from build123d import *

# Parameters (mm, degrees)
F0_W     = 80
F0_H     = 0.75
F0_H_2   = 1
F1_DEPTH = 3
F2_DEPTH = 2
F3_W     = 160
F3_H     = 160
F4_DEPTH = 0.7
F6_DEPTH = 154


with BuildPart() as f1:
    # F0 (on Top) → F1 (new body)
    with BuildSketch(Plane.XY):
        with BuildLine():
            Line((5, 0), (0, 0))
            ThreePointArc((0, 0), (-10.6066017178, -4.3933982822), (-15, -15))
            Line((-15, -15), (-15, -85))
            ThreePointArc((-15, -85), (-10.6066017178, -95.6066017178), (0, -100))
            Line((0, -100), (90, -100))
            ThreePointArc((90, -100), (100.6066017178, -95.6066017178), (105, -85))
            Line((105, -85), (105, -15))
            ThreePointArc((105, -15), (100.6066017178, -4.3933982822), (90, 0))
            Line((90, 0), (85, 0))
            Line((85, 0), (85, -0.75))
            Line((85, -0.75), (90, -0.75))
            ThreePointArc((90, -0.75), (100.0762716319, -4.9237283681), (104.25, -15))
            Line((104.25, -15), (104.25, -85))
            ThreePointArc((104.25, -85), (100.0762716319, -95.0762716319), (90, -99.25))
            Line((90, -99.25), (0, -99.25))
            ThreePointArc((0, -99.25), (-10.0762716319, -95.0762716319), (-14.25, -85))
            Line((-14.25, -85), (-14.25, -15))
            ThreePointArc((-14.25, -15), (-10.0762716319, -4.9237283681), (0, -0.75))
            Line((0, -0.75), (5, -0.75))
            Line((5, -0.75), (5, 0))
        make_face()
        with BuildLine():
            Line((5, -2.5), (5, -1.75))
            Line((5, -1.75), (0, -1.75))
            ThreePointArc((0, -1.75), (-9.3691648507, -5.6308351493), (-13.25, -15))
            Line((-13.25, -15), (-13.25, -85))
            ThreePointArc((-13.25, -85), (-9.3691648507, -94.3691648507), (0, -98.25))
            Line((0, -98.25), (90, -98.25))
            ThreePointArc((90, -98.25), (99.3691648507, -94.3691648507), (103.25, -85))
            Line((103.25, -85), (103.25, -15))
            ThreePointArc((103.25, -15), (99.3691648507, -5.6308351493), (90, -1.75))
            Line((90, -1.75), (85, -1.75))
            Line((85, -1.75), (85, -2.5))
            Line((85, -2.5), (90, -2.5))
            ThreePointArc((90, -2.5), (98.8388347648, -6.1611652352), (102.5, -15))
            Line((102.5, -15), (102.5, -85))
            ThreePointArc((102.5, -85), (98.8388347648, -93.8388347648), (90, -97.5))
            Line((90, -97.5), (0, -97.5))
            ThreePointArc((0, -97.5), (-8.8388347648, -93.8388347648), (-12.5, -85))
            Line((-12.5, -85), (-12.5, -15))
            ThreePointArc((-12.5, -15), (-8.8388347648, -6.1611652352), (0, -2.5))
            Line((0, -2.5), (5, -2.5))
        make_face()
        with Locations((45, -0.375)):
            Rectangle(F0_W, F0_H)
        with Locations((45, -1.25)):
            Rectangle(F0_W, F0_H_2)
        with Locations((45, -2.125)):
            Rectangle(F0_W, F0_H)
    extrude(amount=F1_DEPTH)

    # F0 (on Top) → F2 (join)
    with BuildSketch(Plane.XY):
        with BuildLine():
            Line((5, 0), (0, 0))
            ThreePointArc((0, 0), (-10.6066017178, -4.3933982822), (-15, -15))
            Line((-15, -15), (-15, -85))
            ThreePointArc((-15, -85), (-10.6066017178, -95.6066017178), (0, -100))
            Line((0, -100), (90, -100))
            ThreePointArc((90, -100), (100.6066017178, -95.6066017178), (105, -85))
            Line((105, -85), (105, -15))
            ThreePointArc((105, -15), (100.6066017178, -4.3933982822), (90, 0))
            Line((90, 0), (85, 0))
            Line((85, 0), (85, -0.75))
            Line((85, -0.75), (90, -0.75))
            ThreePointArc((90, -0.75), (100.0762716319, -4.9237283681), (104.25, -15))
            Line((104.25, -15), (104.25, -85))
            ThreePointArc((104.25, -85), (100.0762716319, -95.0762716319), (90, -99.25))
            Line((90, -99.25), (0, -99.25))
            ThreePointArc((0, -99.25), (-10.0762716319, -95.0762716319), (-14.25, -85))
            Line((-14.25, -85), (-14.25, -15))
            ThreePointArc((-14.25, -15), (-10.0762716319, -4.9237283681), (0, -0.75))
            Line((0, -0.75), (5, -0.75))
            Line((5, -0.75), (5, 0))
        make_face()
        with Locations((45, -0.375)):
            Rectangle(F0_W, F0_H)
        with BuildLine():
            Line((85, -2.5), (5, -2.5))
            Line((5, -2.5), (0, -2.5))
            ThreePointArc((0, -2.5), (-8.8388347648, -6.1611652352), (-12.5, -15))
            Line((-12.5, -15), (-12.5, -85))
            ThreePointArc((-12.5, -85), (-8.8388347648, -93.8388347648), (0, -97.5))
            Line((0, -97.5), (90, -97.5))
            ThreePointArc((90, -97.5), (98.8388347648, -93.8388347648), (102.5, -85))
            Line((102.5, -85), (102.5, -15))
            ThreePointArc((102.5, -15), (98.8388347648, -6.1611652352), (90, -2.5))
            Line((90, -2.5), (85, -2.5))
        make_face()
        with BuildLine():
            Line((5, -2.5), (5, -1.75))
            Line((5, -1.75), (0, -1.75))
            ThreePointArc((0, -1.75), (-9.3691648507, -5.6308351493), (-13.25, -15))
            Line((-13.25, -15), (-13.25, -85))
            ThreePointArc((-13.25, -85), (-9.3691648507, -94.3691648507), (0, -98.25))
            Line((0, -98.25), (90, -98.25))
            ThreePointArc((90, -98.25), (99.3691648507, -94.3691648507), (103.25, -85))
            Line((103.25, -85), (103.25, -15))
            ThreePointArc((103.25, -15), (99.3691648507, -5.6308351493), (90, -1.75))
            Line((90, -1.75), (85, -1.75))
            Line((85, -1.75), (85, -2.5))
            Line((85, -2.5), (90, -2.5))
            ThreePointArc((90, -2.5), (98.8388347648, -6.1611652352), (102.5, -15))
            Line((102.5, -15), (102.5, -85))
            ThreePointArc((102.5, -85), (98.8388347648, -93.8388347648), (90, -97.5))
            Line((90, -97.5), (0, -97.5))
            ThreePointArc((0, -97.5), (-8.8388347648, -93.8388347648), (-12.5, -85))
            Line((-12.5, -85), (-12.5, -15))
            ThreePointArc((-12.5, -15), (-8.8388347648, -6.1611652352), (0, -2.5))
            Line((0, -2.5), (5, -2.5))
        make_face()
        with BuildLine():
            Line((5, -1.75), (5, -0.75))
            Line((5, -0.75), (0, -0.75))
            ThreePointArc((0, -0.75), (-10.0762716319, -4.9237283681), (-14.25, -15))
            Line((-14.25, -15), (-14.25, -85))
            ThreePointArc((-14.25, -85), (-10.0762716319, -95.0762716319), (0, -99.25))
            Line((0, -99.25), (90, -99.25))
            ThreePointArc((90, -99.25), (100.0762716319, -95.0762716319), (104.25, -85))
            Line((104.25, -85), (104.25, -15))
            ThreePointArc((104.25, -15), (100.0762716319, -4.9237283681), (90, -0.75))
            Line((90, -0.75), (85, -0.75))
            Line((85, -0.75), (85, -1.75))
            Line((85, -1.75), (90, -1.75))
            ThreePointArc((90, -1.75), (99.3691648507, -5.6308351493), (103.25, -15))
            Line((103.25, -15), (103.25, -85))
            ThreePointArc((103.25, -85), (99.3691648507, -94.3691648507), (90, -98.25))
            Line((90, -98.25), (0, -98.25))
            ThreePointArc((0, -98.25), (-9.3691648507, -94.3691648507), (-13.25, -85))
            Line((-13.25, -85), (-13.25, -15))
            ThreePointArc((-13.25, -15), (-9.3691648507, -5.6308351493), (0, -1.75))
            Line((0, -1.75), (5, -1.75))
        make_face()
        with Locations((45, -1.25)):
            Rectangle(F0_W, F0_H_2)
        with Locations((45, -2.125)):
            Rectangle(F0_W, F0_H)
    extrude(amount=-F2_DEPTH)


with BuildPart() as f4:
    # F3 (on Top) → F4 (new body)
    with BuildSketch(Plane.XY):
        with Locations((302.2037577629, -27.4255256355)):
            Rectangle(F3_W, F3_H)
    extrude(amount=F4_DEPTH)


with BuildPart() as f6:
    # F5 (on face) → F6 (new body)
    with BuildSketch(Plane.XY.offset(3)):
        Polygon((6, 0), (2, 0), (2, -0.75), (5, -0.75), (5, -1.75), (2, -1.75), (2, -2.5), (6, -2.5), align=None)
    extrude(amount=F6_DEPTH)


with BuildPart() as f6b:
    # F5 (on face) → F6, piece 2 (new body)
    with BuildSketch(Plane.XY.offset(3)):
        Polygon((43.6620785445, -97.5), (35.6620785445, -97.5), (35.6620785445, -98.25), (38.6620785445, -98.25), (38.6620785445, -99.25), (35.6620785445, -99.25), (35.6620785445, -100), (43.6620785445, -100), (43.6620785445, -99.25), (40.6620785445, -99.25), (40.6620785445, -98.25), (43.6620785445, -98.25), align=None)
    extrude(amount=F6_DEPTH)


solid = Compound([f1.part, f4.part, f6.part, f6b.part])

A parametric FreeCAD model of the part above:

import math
import FreeCAD as App
import Part
import Sketcher

V = App.Vector
Q = App.Units.Quantity


def add_polygon(sketch, points):
    """Adds a closed chain of lines whose ends are joined by coincident constraints."""
    first, n = sketch.GeometryCount, len(points)
    for a, b in zip(points, points[1:] + points[:1]):
        sketch.addGeometry(Part.LineSegment(App.Vector(*a, 0), App.Vector(*b, 0)), False)
    for i in range(n):
        sketch.addConstraint(Sketcher.Constraint("Coincident", first + i, 2, first + (i + 1) % n, 1))

doc = App.newDocument("Part")
body = doc.addObject("PartDesign::Body", "Body")

# Sketch on XY plane
sketch1 = doc.addObject("Sketcher::SketchObject", "Sketch")
body.addObject(sketch1)
sketch1.AttachmentSupport = (doc.XY_Plane, [""])
sketch1.MapMode = "FlatFace"
sketch1.addGeometry(Part.ArcOfCircle(Part.Circle(V(0, -15, 0), V(0, 0, 1), 15), math.radians(90), math.radians(180)), False)
sketch1.addGeometry(Part.LineSegment(V(-15, -15, 0), V(-15, -85, 0)), False)
sketch1.addGeometry(Part.ArcOfCircle(Part.Circle(V(0, -85, 0), V(0, 0, 1), 15), math.radians(180), math.radians(270)), False)
sketch1.addGeometry(Part.LineSegment(V(0, -100, 0), V(90, -100, 0)), False)
sketch1.addGeometry(Part.ArcOfCircle(Part.Circle(V(90, -85, 0), V(0, 0, 1), 15), math.radians(-90), math.radians(0)), False)
sketch1.addGeometry(Part.LineSegment(V(105, -85, 0), V(105, -15, 0)), False)
sketch1.addGeometry(Part.ArcOfCircle(Part.Circle(V(90, -15, 0), V(0, 0, 1), 15), math.radians(0), math.radians(90)), False)
sketch1.addGeometry(Part.LineSegment(V(90, 0, 0), V(0, 0, 0)), False)
sketch1.addGeometry(Part.ArcOfCircle(Part.Circle(V(90, -15, 0), V(0, 0, 1), 14.2), math.radians(0), math.radians(90)), False)
sketch1.addGeometry(Part.LineSegment(V(104.2, -15, 0), V(104.2, -85, 0)), False)
sketch1.addGeometry(Part.ArcOfCircle(Part.Circle(V(90, -85, 0), V(0, 0, 1), 14.2), math.radians(-90), math.radians(0)), False)
sketch1.addGeometry(Part.LineSegment(V(90, -99.2, 0), V(0, -99.2, 0)), False)
sketch1.addGeometry(Part.ArcOfCircle(Part.Circle(V(0, -85, 0), V(0, 0, 1), 14.2), math.radians(180), math.radians(270)), False)
sketch1.addGeometry(Part.LineSegment(V(-14.2, -85, 0), V(-14.2, -15, 0)), False)
sketch1.addGeometry(Part.ArcOfCircle(Part.Circle(V(0, -15, 0), V(0, 0, 1), 14.2), math.radians(90), math.radians(180)), False)
sketch1.addGeometry(Part.LineSegment(V(0, -0.8, 0), V(5, -0.8, 0)), False)
sketch1.addGeometry(Part.LineSegment(V(5, -0.8, 0), V(5, -1.8, 0)), False)
sketch1.addGeometry(Part.LineSegment(V(5, -1.8, 0), V(0, -1.8, 0)), False)
sketch1.addGeometry(Part.ArcOfCircle(Part.Circle(V(0, -15, 0), V(0, 0, 1), 13.2), math.radians(90), math.radians(180)), False)
sketch1.addGeometry(Part.LineSegment(V(-13.2, -15, 0), V(-13.2, -85, 0)), False)
sketch1.addGeometry(Part.ArcOfCircle(Part.Circle(V(0, -85, 0), V(0, 0, 1), 13.2), math.radians(180), math.radians(270)), False)
sketch1.addGeometry(Part.LineSegment(V(0, -98.2, 0), V(90, -98.2, 0)), False)
sketch1.addGeometry(Part.ArcOfCircle(Part.Circle(V(90, -85, 0), V(0, 0, 1), 13.2), math.radians(-90), math.radians(0)), False)
sketch1.addGeometry(Part.LineSegment(V(103.2, -85, 0), V(103.2, -15, 0)), False)
sketch1.addGeometry(Part.ArcOfCircle(Part.Circle(V(90, -15, 0), V(0, 0, 1), 13.2), math.radians(0), math.radians(90)), False)
sketch1.addGeometry(Part.LineSegment(V(90, -1.8, 0), V(85, -1.8, 0)), False)
sketch1.addGeometry(Part.LineSegment(V(85, -1.8, 0), V(85, -0.8, 0)), False)
sketch1.addGeometry(Part.LineSegment(V(85, -0.8, 0), V(90, -0.8, 0)), False)
sketch1.addGeometry(Part.ArcOfCircle(Part.Circle(V(90, -15, 0), V(0, 0, 1), 12.5), math.radians(0), math.radians(90)), False)
sketch1.addGeometry(Part.LineSegment(V(102.5, -15, 0), V(102.5, -85, 0)), False)
sketch1.addGeometry(Part.ArcOfCircle(Part.Circle(V(90, -85, 0), V(0, 0, 1), 12.5), math.radians(-90), math.radians(0)), False)
sketch1.addGeometry(Part.LineSegment(V(90, -97.5, 0), V(0, -97.5, 0)), False)
sketch1.addGeometry(Part.ArcOfCircle(Part.Circle(V(0, -85, 0), V(0, 0, 1), 12.5), math.radians(180), math.radians(270)), False)
sketch1.addGeometry(Part.LineSegment(V(-12.5, -85, 0), V(-12.5, -15, 0)), False)
sketch1.addGeometry(Part.ArcOfCircle(Part.Circle(V(0, -15, 0), V(0, 0, 1), 12.5), math.radians(90), math.radians(180)), False)
sketch1.addGeometry(Part.LineSegment(V(0, -2.5, 0), V(90, -2.5, 0)), False)
sketch1.addConstraint(Sketcher.Constraint("Tangent", 0, 2, 1, 1))
sketch1.addConstraint(Sketcher.Constraint("Tangent", 1, 2, 2, 1))
sketch1.addConstraint(Sketcher.Constraint("Tangent", 2, 2, 3, 1))
sketch1.addConstraint(Sketcher.Constraint("Tangent", 3, 2, 4, 1))
sketch1.addConstraint(Sketcher.Constraint("Tangent", 4, 2, 5, 1))
sketch1.addConstraint(Sketcher.Constraint("Tangent", 5, 2, 6, 1))
sketch1.addConstraint(Sketcher.Constraint("Tangent", 6, 2, 7, 1))
sketch1.addConstraint(Sketcher.Constraint("Tangent", 7, 2, 0, 1))
sketch1.addConstraint(Sketcher.Constraint("Tangent", 8, 1, 9, 1))
sketch1.addConstraint(Sketcher.Constraint("Tangent", 9, 2, 10, 2))
sketch1.addConstraint(Sketcher.Constraint("Tangent", 10, 1, 11, 1))
sketch1.addConstraint(Sketcher.Constraint("Tangent", 11, 2, 12, 2))
sketch1.addConstraint(Sketcher.Constraint("Tangent", 12, 1, 13, 1))
sketch1.addConstraint(Sketcher.Constraint("Tangent", 13, 2, 14, 2))
sketch1.addConstraint(Sketcher.Constraint("Tangent", 14, 1, 15, 1))
sketch1.addConstraint(Sketcher.Constraint("Coincident", 15, 2, 16, 1))
sketch1.addConstraint(Sketcher.Constraint("Coincident", 16, 2, 17, 1))
sketch1.addConstraint(Sketcher.Constraint("Tangent", 17, 2, 18, 1))
sketch1.addConstraint(Sketcher.Constraint("Tangent", 18, 2, 19, 1))
sketch1.addConstraint(Sketcher.Constraint("Tangent", 19, 2, 20, 1))
sketch1.addConstraint(Sketcher.Constraint("Tangent", 20, 2, 21, 1))
sketch1.addConstraint(Sketcher.Constraint("Tangent", 21, 2, 22, 1))
sketch1.addConstraint(Sketcher.Constraint("Tangent", 22, 2, 23, 1))
sketch1.addConstraint(Sketcher.Constraint("Tangent", 23, 2, 24, 1))
sketch1.addConstraint(Sketcher.Constraint("Tangent", 24, 2, 25, 1))
sketch1.addConstraint(Sketcher.Constraint("Coincident", 25, 2, 26, 1))
sketch1.addConstraint(Sketcher.Constraint("Coincident", 26, 2, 27, 1))
sketch1.addConstraint(Sketcher.Constraint("Tangent", 27, 2, 8, 2))
sketch1.addConstraint(Sketcher.Constraint("Tangent", 28, 1, 29, 1))
sketch1.addConstraint(Sketcher.Constraint("Tangent", 29, 2, 30, 2))
sketch1.addConstraint(Sketcher.Constraint("Tangent", 30, 1, 31, 1))
sketch1.addConstraint(Sketcher.Constraint("Tangent", 31, 2, 32, 2))
sketch1.addConstraint(Sketcher.Constraint("Tangent", 32, 1, 33, 1))
sketch1.addConstraint(Sketcher.Constraint("Tangent", 33, 2, 34, 2))
sketch1.addConstraint(Sketcher.Constraint("Tangent", 34, 1, 35, 1))
sketch1.addConstraint(Sketcher.Constraint("Tangent", 35, 2, 28, 2))
sketch1.addConstraint(Sketcher.Constraint("Vertical", 1))
sketch1.addConstraint(Sketcher.Constraint("Horizontal", 3))
sketch1.addConstraint(Sketcher.Constraint("Vertical", 5))
sketch1.addConstraint(Sketcher.Constraint("Horizontal", 7))
sketch1.addConstraint(Sketcher.Constraint("Vertical", 9))
sketch1.addConstraint(Sketcher.Constraint("Horizontal", 11))
sketch1.addConstraint(Sketcher.Constraint("Vertical", 13))
sketch1.addConstraint(Sketcher.Constraint("Horizontal", 15))
sketch1.addConstraint(Sketcher.Constraint("Vertical", 16))
sketch1.addConstraint(Sketcher.Constraint("Horizontal", 17))
sketch1.addConstraint(Sketcher.Constraint("Vertical", 19))
sketch1.addConstraint(Sketcher.Constraint("Horizontal", 21))
sketch1.addConstraint(Sketcher.Constraint("Vertical", 23))
sketch1.addConstraint(Sketcher.Constraint("Horizontal", 25))
sketch1.addConstraint(Sketcher.Constraint("Vertical", 26))
sketch1.addConstraint(Sketcher.Constraint("Horizontal", 27))
sketch1.addConstraint(Sketcher.Constraint("Vertical", 29))
sketch1.addConstraint(Sketcher.Constraint("Horizontal", 31))
sketch1.addConstraint(Sketcher.Constraint("Vertical", 33))
sketch1.addConstraint(Sketcher.Constraint("Horizontal", 35))
sketch1.addConstraint(Sketcher.Constraint("Coincident", 7, 2, -1, 1))
sketch1.addConstraint(Sketcher.Constraint("Coincident", 8, 3, 6, 3))
sketch1.addConstraint(Sketcher.Constraint("Coincident", 10, 3, 4, 3))
sketch1.addConstraint(Sketcher.Constraint("Coincident", 12, 3, 2, 3))
sketch1.addConstraint(Sketcher.Constraint("Coincident", 14, 3, 0, 3))
sketch1.addConstraint(Sketcher.Constraint("Coincident", 18, 3, 0, 3))
sketch1.addConstraint(Sketcher.Constraint("Coincident", 20, 3, 2, 3))
sketch1.addConstraint(Sketcher.Constraint("Coincident", 22, 3, 4, 3))
sketch1.addConstraint(Sketcher.Constraint("Coincident", 24, 3, 6, 3))
sketch1.addConstraint(Sketcher.Constraint("Coincident", 28, 3, 6, 3))
sketch1.addConstraint(Sketcher.Constraint("Coincident", 30, 3, 4, 3))
sketch1.addConstraint(Sketcher.Constraint("Coincident", 32, 3, 2, 3))
sketch1.addConstraint(Sketcher.Constraint("Equal", 0, 2))
sketch1.addConstraint(Sketcher.Constraint("Equal", 2, 4))
sketch1.addConstraint(Sketcher.Constraint("Equal", 4, 6))
sketch1.addConstraint(Sketcher.Constraint("Equal", 32, 34))
sketch1.addConstraint(Sketcher.Constraint("Equal", 17, 25))
sketch1.addConstraint(Sketcher.Constraint("Radius", 0, Q("15 mm")))
sketch1.addConstraint(Sketcher.Constraint("Radius", 28, Q("12.5 mm")))
sketch1.addConstraint(Sketcher.Constraint("DistanceX", 3, 1, 3, 2, Q("90 mm")))
sketch1.addConstraint(Sketcher.Constraint("DistanceX", 15, 1, 15, 2, Q("5 mm")))
sketch1.addConstraint(Sketcher.Constraint("DistanceY", 1, 2, 1, 1, Q("70 mm")))
sketch1.addConstraint(Sketcher.Constraint("DistanceY", 16, 2, 16, 1, Q("1 mm")))
sketch1.addConstraint(Sketcher.Constraint("Radius", 8, Q("14.25 mm")))
pad1 = doc.addObject("PartDesign::Pad", "Pad")
body.addObject(pad1)
pad1.Profile = sketch1
pad1.Length = 3

# Sketch on XY plane
sketch2 = doc.addObject("Sketcher::SketchObject", "Sketch001")
body.addObject(sketch2)
sketch2.AttachmentSupport = (doc.XY_Plane, [""])
sketch2.MapMode = "FlatFace"
sketch2.addGeometry(Part.ArcOfCircle(Part.Circle(V(0, -15, 0), V(0, 0, 1), 15), math.radians(90), math.radians(180)), False)
sketch2.addGeometry(Part.LineSegment(V(-15, -15, 0), V(-15, -85, 0)), False)
sketch2.addGeometry(Part.ArcOfCircle(Part.Circle(V(0, -85, 0), V(0, 0, 1), 15), math.radians(180), math.radians(270)), False)
sketch2.addGeometry(Part.LineSegment(V(0, -100, 0), V(90, -100, 0)), False)
sketch2.addGeometry(Part.ArcOfCircle(Part.Circle(V(90, -85, 0), V(0, 0, 1), 15), math.radians(-90), math.radians(0)), False)
sketch2.addGeometry(Part.LineSegment(V(105, -85, 0), V(105, -15, 0)), False)
sketch2.addGeometry(Part.ArcOfCircle(Part.Circle(V(90, -15, 0), V(0, 0, 1), 15), math.radians(0), math.radians(90)), False)
sketch2.addGeometry(Part.LineSegment(V(90, 0, 0), V(0, 0, 0)), False)
sketch2.addConstraint(Sketcher.Constraint("Tangent", 0, 2, 1, 1))
sketch2.addConstraint(Sketcher.Constraint("Tangent", 1, 2, 2, 1))
sketch2.addConstraint(Sketcher.Constraint("Tangent", 2, 2, 3, 1))
sketch2.addConstraint(Sketcher.Constraint("Tangent", 3, 2, 4, 1))
sketch2.addConstraint(Sketcher.Constraint("Tangent", 4, 2, 5, 1))
sketch2.addConstraint(Sketcher.Constraint("Tangent", 5, 2, 6, 1))
sketch2.addConstraint(Sketcher.Constraint("Tangent", 6, 2, 7, 1))
sketch2.addConstraint(Sketcher.Constraint("Tangent", 7, 2, 0, 1))
sketch2.addConstraint(Sketcher.Constraint("Vertical", 1))
sketch2.addConstraint(Sketcher.Constraint("Horizontal", 3))
sketch2.addConstraint(Sketcher.Constraint("Vertical", 5))
sketch2.addConstraint(Sketcher.Constraint("Horizontal", 7))
sketch2.addConstraint(Sketcher.Constraint("Coincident", 7, 2, -1, 1))
sketch2.addConstraint(Sketcher.Constraint("Equal", 0, 2))
sketch2.addConstraint(Sketcher.Constraint("Equal", 2, 4))
sketch2.addConstraint(Sketcher.Constraint("Equal", 4, 6))
sketch2.addConstraint(Sketcher.Constraint("Radius", 0, Q("15 mm")))
sketch2.addConstraint(Sketcher.Constraint("DistanceX", 3, 1, 3, 2, Q("90 mm")))
sketch2.addConstraint(Sketcher.Constraint("DistanceY", 1, 2, 1, 1, Q("70 mm")))
pad2 = doc.addObject("PartDesign::Pad", "Pad001")
body.addObject(pad2)
pad2.Profile = sketch2
pad2.Length = 2
pad2.Reversed = True
body2 = doc.addObject("PartDesign::Body", "Body001")

# Sketch on XY plane
sketch3 = doc.addObject("Sketcher::SketchObject", "Sketch002")
body2.addObject(sketch3)
sketch3.AttachmentSupport = (doc.getObject("XY_Plane001"), [""])
sketch3.MapMode = "FlatFace"
add_polygon(sketch3, [(222, 53), (222, -107), (382, -107), (382, 53)])  # lines 0-3
sketch3.addConstraint(Sketcher.Constraint("Vertical", 0))
sketch3.addConstraint(Sketcher.Constraint("Horizontal", 1))
sketch3.addConstraint(Sketcher.Constraint("Vertical", 2))
sketch3.addConstraint(Sketcher.Constraint("Horizontal", 3))
sketch3.addConstraint(Sketcher.Constraint("Equal", 3, 0))
sketch3.addConstraint(Sketcher.Constraint("DistanceX", 1, 1, 1, 2, Q("160 mm")))
sketch3.addConstraint(Sketcher.Constraint("DistanceX", -1, 1, 0, 2, Q("222.203758 mm")))
sketch3.addConstraint(Sketcher.Constraint("DistanceY", 0, 2, -1, 1, Q("107.425526 mm")))
pad3 = doc.addObject("PartDesign::Pad", "Pad002")
body2.addObject(pad3)
pad3.Profile = sketch3
pad3.Length = 0.7
body3 = doc.addObject("PartDesign::Body", "Body002")

# Sketch on XY plane
sketch4 = doc.addObject("Sketcher::SketchObject", "Sketch003")
body3.addObject(sketch4)
sketch4.AttachmentSupport = (doc.getObject("XY_Plane002"), [""])
sketch4.MapMode = "FlatFace"
sketch4.AttachmentOffset = App.Placement(V(0, 0, 3), App.Rotation())
add_polygon(sketch4, [(6, 0), (2, 0), (2, -0.8), (5, -0.8), (5, -1.8), (2, -1.8), (2, -2.5), (6, -2.5)])  # lines 0-7
sketch4.addConstraint(Sketcher.Constraint("Horizontal", 0))
sketch4.addConstraint(Sketcher.Constraint("Vertical", 1))
sketch4.addConstraint(Sketcher.Constraint("Horizontal", 2))
sketch4.addConstraint(Sketcher.Constraint("Vertical", 3))
sketch4.addConstraint(Sketcher.Constraint("Horizontal", 4))
sketch4.addConstraint(Sketcher.Constraint("Vertical", 5))
sketch4.addConstraint(Sketcher.Constraint("Horizontal", 6))
sketch4.addConstraint(Sketcher.Constraint("Vertical", 7))
sketch4.addConstraint(Sketcher.Constraint("PointOnObject", 0, 2, -1))
sketch4.addConstraint(Sketcher.Constraint("Vertical", 1, 2, 4, 2))
sketch4.addConstraint(Sketcher.Constraint("Equal", 1, 5))
sketch4.addConstraint(Sketcher.Constraint("DistanceX", 0, 2, 0, 1, Q("4 mm")))
sketch4.addConstraint(Sketcher.Constraint("DistanceX", 2, 1, 2, 2, Q("3 mm")))
sketch4.addConstraint(Sketcher.Constraint("DistanceY", 3, 2, 3, 1, Q("1 mm")))
sketch4.addConstraint(Sketcher.Constraint("DistanceY", 7, 1, 7, 2, Q("2.5 mm")))
sketch4.addConstraint(Sketcher.Constraint("DistanceX", -1, 1, 0, 2, Q("2 mm")))
pad4 = doc.addObject("PartDesign::Pad", "Pad003")
body3.addObject(pad4)
pad4.Profile = sketch4
pad4.Length = 154
body4 = doc.addObject("PartDesign::Body", "Body003")

# Sketch on XY plane
sketch5 = doc.addObject("Sketcher::SketchObject", "Sketch004")
body4.addObject(sketch5)
sketch5.AttachmentSupport = (doc.getObject("XY_Plane003"), [""])
sketch5.MapMode = "FlatFace"
sketch5.AttachmentOffset = App.Placement(V(0, 0, 3), App.Rotation())
add_polygon(sketch5, [(43.7, -97.5), (35.7, -97.5), (35.7, -98.2), (38.7, -98.2), (38.7, -99.2), (35.7, -99.2), (35.7, -100), (43.7, -100), (43.7, -99.2), (40.7, -99.2), (40.7, -98.2), (43.7, -98.2)])  # lines 0-11
sketch5.addConstraint(Sketcher.Constraint("Horizontal", 0))
sketch5.addConstraint(Sketcher.Constraint("Vertical", 1))
sketch5.addConstraint(Sketcher.Constraint("Horizontal", 2))
sketch5.addConstraint(Sketcher.Constraint("Vertical", 3))
sketch5.addConstraint(Sketcher.Constraint("Horizontal", 4))
sketch5.addConstraint(Sketcher.Constraint("Vertical", 5))
sketch5.addConstraint(Sketcher.Constraint("Horizontal", 6))
sketch5.addConstraint(Sketcher.Constraint("Vertical", 7))
sketch5.addConstraint(Sketcher.Constraint("Horizontal", 8))
sketch5.addConstraint(Sketcher.Constraint("Vertical", 9))
sketch5.addConstraint(Sketcher.Constraint("Horizontal", 10))
sketch5.addConstraint(Sketcher.Constraint("Vertical", 11))
sketch5.addConstraint(Sketcher.Constraint("Horizontal", 4, 2, 7, 2))
sketch5.addConstraint(Sketcher.Constraint("Horizontal", 2, 2, 9, 2))
sketch5.addConstraint(Sketcher.Constraint("Vertical", 1, 2, 4, 2))
sketch5.addConstraint(Sketcher.Constraint("Vertical", 7, 2, 10, 2))
sketch5.addConstraint(Sketcher.Constraint("Equal", 4, 8))
sketch5.addConstraint(Sketcher.Constraint("Equal", 1, 5))
sketch5.addConstraint(Sketcher.Constraint("DistanceX", 0, 2, 0, 1, Q("8 mm")))
sketch5.addConstraint(Sketcher.Constraint("DistanceX", 2, 1, 2, 2, Q("3 mm")))
sketch5.addConstraint(Sketcher.Constraint("DistanceY", 3, 2, 3, 1, Q("1 mm")))
sketch5.addConstraint(Sketcher.Constraint("DistanceY", 5, 2, -1, 1, Q("100 mm")))
sketch5.addConstraint(Sketcher.Constraint("DistanceY", 1, 2, 1, 1, Q("0.75 mm")))
sketch5.addConstraint(Sketcher.Constraint("DistanceX", -1, 1, 0, 2, Q("35.662079 mm")))
pad5 = doc.addObject("PartDesign::Pad", "Pad004")
body4.addObject(pad5)
pad5.Profile = sketch5
pad5.Length = 154

doc.recompute()
